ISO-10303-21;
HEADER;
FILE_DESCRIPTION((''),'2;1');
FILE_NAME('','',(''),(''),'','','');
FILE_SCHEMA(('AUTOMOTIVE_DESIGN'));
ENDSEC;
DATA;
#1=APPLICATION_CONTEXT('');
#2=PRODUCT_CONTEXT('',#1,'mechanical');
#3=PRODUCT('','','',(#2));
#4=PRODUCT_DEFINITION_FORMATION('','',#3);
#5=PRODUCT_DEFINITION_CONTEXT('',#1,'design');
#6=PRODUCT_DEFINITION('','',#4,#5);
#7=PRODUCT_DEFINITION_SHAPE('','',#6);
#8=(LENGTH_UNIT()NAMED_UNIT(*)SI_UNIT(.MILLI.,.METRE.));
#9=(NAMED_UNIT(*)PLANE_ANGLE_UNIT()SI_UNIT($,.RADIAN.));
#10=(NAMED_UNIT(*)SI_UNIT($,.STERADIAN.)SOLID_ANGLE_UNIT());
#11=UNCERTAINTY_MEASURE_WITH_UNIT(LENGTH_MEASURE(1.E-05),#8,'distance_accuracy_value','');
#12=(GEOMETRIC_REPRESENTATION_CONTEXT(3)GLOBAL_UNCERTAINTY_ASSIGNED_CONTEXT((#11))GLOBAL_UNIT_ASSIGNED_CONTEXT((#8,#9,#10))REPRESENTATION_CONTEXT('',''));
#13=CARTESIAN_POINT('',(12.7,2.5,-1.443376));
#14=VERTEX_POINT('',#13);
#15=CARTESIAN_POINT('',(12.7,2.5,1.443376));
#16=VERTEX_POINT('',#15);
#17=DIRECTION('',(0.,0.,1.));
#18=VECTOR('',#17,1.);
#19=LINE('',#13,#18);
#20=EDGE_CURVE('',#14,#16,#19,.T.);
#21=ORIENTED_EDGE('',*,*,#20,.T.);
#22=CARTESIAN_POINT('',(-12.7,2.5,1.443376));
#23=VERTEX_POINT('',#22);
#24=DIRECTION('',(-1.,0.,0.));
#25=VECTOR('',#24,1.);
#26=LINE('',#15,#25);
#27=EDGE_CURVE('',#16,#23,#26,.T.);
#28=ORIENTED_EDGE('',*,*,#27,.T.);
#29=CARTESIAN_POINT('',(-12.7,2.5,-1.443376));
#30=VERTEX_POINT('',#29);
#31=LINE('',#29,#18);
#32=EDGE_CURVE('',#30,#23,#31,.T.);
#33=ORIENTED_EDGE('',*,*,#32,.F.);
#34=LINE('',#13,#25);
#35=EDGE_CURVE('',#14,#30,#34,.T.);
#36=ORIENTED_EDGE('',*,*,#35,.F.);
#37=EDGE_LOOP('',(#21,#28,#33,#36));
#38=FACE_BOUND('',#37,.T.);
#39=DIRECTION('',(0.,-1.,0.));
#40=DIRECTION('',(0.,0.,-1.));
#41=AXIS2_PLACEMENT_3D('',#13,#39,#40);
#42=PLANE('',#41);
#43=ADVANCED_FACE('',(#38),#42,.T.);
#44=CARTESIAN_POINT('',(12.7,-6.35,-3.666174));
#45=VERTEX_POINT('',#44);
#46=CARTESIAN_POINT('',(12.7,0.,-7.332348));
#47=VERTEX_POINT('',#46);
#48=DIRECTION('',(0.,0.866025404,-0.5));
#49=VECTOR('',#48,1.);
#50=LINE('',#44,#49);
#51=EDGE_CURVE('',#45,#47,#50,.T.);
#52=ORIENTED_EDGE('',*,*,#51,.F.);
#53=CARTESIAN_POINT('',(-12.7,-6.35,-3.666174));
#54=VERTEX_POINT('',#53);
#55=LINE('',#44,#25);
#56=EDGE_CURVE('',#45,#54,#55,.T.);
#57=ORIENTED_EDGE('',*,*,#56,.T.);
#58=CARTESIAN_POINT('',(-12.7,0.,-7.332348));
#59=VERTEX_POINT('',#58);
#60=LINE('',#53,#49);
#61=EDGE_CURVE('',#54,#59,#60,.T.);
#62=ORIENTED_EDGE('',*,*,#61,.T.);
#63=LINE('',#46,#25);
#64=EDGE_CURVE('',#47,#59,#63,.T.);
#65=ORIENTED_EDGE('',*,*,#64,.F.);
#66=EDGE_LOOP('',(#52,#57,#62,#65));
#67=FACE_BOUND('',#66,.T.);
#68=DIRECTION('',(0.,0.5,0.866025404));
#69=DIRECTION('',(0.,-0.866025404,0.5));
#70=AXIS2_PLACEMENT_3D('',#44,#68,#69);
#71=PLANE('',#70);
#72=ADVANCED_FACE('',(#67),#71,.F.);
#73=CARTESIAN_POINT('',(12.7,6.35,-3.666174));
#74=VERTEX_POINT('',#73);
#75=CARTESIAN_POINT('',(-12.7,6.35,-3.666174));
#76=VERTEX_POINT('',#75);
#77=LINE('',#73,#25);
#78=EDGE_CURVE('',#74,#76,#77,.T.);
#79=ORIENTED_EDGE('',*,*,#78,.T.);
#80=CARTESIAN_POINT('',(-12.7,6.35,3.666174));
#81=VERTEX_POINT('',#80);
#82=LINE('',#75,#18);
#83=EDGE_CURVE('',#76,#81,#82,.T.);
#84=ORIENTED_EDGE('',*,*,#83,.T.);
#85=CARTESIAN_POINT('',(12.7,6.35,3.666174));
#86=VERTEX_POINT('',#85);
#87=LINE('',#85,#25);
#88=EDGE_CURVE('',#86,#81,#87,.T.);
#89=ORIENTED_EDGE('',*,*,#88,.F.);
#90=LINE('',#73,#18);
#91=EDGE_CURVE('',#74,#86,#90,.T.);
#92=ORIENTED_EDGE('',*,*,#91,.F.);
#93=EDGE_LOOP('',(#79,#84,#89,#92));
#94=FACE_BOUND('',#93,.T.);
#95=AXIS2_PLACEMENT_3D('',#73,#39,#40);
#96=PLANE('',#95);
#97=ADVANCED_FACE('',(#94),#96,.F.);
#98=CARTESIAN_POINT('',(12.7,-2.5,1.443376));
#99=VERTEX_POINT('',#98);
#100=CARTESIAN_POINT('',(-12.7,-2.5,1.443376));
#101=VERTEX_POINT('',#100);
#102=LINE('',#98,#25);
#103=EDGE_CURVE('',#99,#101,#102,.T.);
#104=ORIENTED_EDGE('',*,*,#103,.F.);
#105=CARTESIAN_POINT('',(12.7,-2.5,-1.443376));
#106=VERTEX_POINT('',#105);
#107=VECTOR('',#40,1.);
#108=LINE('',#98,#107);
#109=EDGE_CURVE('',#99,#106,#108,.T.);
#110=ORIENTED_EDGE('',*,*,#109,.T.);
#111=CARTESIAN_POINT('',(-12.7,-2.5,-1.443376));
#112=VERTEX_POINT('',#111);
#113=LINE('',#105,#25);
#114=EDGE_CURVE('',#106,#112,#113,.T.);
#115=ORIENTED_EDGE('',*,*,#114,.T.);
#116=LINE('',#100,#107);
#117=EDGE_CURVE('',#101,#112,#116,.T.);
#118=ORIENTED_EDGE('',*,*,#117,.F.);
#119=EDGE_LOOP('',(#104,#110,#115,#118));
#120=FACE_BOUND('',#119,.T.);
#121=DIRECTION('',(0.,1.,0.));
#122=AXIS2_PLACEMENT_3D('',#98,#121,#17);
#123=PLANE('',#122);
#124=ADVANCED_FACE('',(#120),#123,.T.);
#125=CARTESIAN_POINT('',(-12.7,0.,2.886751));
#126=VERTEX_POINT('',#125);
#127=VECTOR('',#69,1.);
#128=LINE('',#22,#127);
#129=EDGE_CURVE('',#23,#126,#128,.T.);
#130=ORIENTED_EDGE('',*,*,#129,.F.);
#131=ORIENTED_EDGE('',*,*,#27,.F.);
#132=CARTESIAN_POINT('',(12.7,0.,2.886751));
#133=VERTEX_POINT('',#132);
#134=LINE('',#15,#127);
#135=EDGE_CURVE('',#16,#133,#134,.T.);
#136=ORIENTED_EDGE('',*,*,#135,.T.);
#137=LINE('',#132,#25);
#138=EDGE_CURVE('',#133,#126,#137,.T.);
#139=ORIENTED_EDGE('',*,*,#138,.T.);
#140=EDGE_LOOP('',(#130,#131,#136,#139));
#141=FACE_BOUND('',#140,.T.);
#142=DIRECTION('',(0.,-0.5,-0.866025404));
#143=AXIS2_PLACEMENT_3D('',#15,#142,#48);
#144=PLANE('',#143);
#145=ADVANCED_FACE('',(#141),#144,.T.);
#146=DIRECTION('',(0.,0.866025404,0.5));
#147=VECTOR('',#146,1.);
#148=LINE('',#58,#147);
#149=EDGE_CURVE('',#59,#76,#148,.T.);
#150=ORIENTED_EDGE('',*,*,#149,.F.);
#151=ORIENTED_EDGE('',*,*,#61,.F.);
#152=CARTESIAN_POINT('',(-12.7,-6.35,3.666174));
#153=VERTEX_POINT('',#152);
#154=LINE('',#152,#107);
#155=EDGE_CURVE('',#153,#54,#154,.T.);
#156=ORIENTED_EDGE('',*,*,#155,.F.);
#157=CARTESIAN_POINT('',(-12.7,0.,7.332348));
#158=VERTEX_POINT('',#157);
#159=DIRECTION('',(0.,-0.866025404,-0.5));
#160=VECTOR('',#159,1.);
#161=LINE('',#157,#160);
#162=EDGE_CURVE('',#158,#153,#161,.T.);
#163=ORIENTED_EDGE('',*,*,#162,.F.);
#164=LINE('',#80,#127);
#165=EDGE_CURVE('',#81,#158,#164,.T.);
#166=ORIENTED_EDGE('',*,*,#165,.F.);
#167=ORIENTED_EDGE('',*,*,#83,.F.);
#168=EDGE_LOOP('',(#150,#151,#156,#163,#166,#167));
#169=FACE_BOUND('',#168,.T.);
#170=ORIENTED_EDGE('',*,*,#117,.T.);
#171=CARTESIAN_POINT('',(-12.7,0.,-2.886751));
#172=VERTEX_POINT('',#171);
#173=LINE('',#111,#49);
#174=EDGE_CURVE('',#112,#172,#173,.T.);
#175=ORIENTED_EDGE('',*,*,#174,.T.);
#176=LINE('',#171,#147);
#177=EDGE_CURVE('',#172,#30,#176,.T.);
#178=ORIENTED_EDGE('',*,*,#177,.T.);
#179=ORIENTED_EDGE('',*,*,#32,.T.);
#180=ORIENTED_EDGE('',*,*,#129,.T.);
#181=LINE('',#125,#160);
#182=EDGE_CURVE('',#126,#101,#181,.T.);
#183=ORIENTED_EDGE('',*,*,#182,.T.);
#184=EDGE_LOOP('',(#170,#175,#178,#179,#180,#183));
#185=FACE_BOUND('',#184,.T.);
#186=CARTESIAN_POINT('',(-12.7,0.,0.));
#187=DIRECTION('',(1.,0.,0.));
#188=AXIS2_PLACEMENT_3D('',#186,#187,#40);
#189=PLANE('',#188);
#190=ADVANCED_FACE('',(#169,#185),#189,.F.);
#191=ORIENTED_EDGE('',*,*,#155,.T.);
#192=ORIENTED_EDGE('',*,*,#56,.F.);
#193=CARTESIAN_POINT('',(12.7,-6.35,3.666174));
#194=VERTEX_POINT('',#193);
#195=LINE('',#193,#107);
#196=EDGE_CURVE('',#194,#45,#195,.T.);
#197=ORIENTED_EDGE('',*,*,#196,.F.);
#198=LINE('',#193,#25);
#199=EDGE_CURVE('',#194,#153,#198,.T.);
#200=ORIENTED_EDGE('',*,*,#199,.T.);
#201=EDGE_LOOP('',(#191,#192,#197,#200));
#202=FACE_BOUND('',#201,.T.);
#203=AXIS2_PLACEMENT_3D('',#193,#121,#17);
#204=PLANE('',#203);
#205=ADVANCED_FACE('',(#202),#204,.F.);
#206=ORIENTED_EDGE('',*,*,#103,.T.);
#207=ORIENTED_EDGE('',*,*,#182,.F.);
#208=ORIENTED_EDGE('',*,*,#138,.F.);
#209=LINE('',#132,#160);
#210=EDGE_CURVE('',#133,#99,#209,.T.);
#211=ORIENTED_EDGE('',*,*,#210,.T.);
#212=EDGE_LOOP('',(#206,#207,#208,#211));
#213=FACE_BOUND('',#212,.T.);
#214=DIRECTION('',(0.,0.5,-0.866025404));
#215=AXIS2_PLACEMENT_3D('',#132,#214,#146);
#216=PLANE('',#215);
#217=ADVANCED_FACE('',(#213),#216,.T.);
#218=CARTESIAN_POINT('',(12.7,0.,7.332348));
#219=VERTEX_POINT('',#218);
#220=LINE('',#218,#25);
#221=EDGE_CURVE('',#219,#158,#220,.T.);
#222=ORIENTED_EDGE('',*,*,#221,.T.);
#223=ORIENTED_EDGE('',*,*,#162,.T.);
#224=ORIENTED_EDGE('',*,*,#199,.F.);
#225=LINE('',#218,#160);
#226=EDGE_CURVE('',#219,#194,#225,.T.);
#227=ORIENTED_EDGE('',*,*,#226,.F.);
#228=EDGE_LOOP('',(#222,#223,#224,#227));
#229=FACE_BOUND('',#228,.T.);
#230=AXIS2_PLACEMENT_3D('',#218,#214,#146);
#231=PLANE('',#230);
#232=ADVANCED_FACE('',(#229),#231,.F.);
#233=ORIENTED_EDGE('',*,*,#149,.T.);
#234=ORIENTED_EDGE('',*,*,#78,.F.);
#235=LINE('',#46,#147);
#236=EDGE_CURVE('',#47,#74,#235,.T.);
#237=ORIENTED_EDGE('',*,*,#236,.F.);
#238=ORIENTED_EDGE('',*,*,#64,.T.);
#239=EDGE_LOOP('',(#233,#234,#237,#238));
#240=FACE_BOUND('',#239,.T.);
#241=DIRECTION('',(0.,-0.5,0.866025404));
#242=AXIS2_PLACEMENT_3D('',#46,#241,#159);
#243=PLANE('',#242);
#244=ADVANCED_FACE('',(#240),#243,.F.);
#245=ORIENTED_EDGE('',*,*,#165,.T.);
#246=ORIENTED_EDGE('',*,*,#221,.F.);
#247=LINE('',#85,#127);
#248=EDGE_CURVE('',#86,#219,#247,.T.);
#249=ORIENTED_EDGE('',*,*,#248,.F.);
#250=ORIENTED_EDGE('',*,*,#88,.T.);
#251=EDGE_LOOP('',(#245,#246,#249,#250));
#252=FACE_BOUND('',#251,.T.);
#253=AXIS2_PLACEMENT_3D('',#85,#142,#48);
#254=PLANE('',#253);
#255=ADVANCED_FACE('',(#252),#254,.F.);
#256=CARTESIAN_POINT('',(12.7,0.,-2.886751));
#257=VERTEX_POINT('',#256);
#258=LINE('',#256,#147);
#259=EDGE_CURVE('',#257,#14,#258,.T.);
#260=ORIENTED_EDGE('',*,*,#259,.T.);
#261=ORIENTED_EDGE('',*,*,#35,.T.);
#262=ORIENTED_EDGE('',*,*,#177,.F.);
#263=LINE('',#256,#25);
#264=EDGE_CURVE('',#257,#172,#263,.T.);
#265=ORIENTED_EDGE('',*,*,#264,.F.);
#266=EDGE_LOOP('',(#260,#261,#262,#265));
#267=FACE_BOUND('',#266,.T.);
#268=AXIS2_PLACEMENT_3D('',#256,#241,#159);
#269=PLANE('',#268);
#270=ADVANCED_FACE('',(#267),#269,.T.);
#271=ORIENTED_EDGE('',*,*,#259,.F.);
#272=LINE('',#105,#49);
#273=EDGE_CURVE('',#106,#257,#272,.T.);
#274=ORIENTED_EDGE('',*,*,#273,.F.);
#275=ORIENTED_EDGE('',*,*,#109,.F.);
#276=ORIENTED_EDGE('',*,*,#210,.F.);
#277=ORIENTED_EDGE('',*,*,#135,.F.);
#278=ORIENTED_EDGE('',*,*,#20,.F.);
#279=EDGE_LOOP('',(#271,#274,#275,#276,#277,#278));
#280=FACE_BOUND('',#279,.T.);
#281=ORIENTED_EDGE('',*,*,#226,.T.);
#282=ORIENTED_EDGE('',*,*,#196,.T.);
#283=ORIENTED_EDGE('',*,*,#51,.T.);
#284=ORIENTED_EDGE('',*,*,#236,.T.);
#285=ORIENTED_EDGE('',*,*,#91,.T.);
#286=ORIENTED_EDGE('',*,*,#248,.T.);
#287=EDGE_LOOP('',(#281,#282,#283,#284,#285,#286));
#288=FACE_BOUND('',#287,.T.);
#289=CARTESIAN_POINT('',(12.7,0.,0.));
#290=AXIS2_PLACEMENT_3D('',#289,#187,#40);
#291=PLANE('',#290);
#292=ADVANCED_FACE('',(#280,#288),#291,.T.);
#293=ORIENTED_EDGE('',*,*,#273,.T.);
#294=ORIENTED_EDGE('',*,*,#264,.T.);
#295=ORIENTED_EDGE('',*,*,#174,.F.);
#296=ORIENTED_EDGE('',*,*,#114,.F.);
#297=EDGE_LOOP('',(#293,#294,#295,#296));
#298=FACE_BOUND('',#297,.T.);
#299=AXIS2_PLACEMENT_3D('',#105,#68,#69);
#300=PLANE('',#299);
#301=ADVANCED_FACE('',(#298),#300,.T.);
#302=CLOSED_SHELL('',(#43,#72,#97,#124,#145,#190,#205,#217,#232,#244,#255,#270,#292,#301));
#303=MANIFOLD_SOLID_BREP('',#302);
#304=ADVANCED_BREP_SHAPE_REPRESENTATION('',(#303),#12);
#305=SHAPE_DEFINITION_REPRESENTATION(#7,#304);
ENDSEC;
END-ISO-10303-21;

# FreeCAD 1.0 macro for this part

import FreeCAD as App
import Part
import Sketcher
Q = App.Units.Quantity


def add_polygon(sketch, points):
    """Adds a closed chain of lines whose ends are joined by coincident constraints."""
    first, n = sketch.GeometryCount, len(points)
    for a, b in zip(points, points[1:] + points[:1]):
        sketch.addGeometry(Part.LineSegment(App.Vector(*a, 0), App.Vector(*b, 0)), False)
    for i in range(n):
        sketch.addConstraint(Sketcher.Constraint("Coincident", first + i, 2, first + (i + 1) % n, 1))

doc = App.newDocument("Part")
body = doc.addObject("PartDesign::Body", "Body")

# Sketch on YZ plane
sketch1 = body.newObject("Sketcher::SketchObject", "Sketch")
sketch1.AttachmentSupport = (doc.getObject("YZ_Plane"), [""])
sketch1.MapMode = "FlatFace"
add_polygon(sketch1, [(0, -7.3), (6.3, -3.7), (6.3, 3.7), (0, 7.3), (-6.3, 3.7), (-6.3, -3.7)])  # lines 0-5
add_polygon(sketch1, [(2.5, -1.4), (0, -2.9), (-2.5, -1.4), (-2.5, 1.4), (0, 2.9), (2.5, 1.4)])  # lines 6-11
sketch1.addConstraint(Sketcher.Constraint("Vertical", 1))
sketch1.addConstraint(Sketcher.Constraint("Vertical", 4))
sketch1.addConstraint(Sketcher.Constraint("Vertical", 8))
sketch1.addConstraint(Sketcher.Constraint("Vertical", 11))
sketch1.addConstraint(Sketcher.Constraint("Symmetric", 0, 2, 3, 2, -1, 1))
sketch1.addConstraint(Sketcher.Constraint("Symmetric", 2, 2, 5, 2, -1, 1))
sketch1.addConstraint(Sketcher.Constraint("Symmetric", 6, 2, 9, 2, -1, 1))
sketch1.addConstraint(Sketcher.Constraint("Symmetric", 7, 2, 10, 2, -1, 1))
sketch1.addConstraint(Sketcher.Constraint("PointOnObject", 2, 2, -2))
sketch1.addConstraint(Sketcher.Constraint("PointOnObject", 6, 2, -2))
sketch1.addConstraint(Sketcher.Constraint("Parallel", 2, 5))
sketch1.addConstraint(Sketcher.Constraint("Parallel", 3, 6))
sketch1.addConstraint(Sketcher.Constraint("Parallel", 5, 7))
sketch1.addConstraint(Sketcher.Constraint("Parallel", 6, 9))
sketch1.addConstraint(Sketcher.Constraint("Horizontal", 1, 2, 3, 2))
sketch1.addConstraint(Sketcher.Constraint("Angle", 0, Q("30 deg")))
sketch1.addConstraint(Sketcher.Constraint("DistanceX", 3, 2, 1, 2, Q("0.5 in")))
sketch1.addConstraint(Sketcher.Constraint("DistanceY", 1, 1, 1, 2, 7.332348))
sketch1.addConstraint(Sketcher.Constraint("DistanceY", 8, 1, 8, 2, 2.886751))
sketch1.addConstraint(Sketcher.Constraint("DistanceX", 7, 2, -1, 1, 2.5))
pad1 = body.newObject("PartDesign::Pad", "Pad")
pad1.Profile = sketch1
pad1.Length = Q("1 in")
pad1.Midplane = True

doc.recompute()
